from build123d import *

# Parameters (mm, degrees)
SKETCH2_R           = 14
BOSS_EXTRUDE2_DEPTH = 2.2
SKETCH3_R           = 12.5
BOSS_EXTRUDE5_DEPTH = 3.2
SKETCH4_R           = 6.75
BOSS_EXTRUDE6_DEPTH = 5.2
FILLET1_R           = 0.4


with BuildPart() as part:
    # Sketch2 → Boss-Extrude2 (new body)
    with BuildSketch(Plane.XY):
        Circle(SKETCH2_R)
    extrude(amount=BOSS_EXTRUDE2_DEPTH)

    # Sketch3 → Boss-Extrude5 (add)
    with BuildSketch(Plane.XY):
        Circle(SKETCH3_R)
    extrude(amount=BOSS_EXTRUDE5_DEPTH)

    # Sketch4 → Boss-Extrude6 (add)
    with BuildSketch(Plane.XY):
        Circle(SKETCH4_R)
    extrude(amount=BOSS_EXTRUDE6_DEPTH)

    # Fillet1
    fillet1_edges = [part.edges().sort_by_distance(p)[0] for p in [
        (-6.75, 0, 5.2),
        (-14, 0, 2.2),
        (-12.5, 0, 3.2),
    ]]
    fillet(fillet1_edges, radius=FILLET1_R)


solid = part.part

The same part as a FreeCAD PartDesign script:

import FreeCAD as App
import Part
import Sketcher

V = App.Vector


def edges_at(feature, points):
    """Names of the edges that pass closest to the given points."""
    edges = feature.Shape.Edges
    near = lambda p: min(range(len(edges)), key=lambda i: edges[i].distToShape(Part.Vertex(*p))[0])
    return sorted({f"Edge{near(p) + 1}" for p in points})

doc = App.newDocument("Part")
body = doc.addObject("PartDesign::Body", "Body")

# Sketch on XY plane
sketch1 = body.newObject("Sketcher::SketchObject", "Sketch")
sketch1.AttachmentSupport = (doc.getObject("XY_Plane"), [""])
sketch1.MapMode = "FlatFace"
sketch1.addGeometry(Part.Circle(V(0, 0, 0), V(0, 0, 1), 14), False)
sketch1.addConstraint(Sketcher.Constraint("Coincident", 0, 3, -1, 1))
sketch1.addConstraint(Sketcher.Constraint("Diameter", 0, 28.0))
pad1 = body.newObject("PartDesign::Pad", "Pad")
pad1.Profile = sketch1
pad1.Length = 2.2

# Sketch on XY plane
sketch2 = body.newObject("Sketcher::SketchObject", "Sketch001")
sketch2.AttachmentSupport = (doc.getObject("XY_Plane"), [""])
sketch2.MapMode = "FlatFace"
sketch2.addGeometry(Part.Circle(V(0, 0, 0), V(0, 0, 1), 12), False)
sketch2.addConstraint(Sketcher.Constraint("Coincident", 0, 3, -1, 1))
sketch2.addConstraint(Sketcher.Constraint("Diameter", 0, 25.0))
pad2 = body.newObject("PartDesign::Pad", "Pad001")
pad2.Profile = sketch2
pad2.Length = 3.2

# Sketch on XY plane
sketch3 = body.newObject("Sketcher::SketchObject", "Sketch002")
sketch3.AttachmentSupport = (doc.getObject("XY_Plane"), [""])
sketch3.MapMode = "FlatFace"
sketch3.addGeometry(Part.Circle(V(0, 0, 0), V(0, 0, 1), 7), False)
sketch3.addConstraint(Sketcher.Constraint("Coincident", 0, 3, -1, 1))
sketch3.addConstraint(Sketcher.Constraint("Diameter", 0, 13.5))
pad3 = body.newObject("PartDesign::Pad", "Pad002")
pad3.Profile = sketch3
pad3.Length = 5.2
doc.recompute()

fillet = body.newObject("PartDesign::Fillet", "Fillet")
fillet.Base = (pad3, edges_at(pad3, [(-6.75, 0, 5.2), (-14, 0, 2.2), (-12.5, 0, 3.2)]))
fillet.Radius = 0.4

doc.recompute()
